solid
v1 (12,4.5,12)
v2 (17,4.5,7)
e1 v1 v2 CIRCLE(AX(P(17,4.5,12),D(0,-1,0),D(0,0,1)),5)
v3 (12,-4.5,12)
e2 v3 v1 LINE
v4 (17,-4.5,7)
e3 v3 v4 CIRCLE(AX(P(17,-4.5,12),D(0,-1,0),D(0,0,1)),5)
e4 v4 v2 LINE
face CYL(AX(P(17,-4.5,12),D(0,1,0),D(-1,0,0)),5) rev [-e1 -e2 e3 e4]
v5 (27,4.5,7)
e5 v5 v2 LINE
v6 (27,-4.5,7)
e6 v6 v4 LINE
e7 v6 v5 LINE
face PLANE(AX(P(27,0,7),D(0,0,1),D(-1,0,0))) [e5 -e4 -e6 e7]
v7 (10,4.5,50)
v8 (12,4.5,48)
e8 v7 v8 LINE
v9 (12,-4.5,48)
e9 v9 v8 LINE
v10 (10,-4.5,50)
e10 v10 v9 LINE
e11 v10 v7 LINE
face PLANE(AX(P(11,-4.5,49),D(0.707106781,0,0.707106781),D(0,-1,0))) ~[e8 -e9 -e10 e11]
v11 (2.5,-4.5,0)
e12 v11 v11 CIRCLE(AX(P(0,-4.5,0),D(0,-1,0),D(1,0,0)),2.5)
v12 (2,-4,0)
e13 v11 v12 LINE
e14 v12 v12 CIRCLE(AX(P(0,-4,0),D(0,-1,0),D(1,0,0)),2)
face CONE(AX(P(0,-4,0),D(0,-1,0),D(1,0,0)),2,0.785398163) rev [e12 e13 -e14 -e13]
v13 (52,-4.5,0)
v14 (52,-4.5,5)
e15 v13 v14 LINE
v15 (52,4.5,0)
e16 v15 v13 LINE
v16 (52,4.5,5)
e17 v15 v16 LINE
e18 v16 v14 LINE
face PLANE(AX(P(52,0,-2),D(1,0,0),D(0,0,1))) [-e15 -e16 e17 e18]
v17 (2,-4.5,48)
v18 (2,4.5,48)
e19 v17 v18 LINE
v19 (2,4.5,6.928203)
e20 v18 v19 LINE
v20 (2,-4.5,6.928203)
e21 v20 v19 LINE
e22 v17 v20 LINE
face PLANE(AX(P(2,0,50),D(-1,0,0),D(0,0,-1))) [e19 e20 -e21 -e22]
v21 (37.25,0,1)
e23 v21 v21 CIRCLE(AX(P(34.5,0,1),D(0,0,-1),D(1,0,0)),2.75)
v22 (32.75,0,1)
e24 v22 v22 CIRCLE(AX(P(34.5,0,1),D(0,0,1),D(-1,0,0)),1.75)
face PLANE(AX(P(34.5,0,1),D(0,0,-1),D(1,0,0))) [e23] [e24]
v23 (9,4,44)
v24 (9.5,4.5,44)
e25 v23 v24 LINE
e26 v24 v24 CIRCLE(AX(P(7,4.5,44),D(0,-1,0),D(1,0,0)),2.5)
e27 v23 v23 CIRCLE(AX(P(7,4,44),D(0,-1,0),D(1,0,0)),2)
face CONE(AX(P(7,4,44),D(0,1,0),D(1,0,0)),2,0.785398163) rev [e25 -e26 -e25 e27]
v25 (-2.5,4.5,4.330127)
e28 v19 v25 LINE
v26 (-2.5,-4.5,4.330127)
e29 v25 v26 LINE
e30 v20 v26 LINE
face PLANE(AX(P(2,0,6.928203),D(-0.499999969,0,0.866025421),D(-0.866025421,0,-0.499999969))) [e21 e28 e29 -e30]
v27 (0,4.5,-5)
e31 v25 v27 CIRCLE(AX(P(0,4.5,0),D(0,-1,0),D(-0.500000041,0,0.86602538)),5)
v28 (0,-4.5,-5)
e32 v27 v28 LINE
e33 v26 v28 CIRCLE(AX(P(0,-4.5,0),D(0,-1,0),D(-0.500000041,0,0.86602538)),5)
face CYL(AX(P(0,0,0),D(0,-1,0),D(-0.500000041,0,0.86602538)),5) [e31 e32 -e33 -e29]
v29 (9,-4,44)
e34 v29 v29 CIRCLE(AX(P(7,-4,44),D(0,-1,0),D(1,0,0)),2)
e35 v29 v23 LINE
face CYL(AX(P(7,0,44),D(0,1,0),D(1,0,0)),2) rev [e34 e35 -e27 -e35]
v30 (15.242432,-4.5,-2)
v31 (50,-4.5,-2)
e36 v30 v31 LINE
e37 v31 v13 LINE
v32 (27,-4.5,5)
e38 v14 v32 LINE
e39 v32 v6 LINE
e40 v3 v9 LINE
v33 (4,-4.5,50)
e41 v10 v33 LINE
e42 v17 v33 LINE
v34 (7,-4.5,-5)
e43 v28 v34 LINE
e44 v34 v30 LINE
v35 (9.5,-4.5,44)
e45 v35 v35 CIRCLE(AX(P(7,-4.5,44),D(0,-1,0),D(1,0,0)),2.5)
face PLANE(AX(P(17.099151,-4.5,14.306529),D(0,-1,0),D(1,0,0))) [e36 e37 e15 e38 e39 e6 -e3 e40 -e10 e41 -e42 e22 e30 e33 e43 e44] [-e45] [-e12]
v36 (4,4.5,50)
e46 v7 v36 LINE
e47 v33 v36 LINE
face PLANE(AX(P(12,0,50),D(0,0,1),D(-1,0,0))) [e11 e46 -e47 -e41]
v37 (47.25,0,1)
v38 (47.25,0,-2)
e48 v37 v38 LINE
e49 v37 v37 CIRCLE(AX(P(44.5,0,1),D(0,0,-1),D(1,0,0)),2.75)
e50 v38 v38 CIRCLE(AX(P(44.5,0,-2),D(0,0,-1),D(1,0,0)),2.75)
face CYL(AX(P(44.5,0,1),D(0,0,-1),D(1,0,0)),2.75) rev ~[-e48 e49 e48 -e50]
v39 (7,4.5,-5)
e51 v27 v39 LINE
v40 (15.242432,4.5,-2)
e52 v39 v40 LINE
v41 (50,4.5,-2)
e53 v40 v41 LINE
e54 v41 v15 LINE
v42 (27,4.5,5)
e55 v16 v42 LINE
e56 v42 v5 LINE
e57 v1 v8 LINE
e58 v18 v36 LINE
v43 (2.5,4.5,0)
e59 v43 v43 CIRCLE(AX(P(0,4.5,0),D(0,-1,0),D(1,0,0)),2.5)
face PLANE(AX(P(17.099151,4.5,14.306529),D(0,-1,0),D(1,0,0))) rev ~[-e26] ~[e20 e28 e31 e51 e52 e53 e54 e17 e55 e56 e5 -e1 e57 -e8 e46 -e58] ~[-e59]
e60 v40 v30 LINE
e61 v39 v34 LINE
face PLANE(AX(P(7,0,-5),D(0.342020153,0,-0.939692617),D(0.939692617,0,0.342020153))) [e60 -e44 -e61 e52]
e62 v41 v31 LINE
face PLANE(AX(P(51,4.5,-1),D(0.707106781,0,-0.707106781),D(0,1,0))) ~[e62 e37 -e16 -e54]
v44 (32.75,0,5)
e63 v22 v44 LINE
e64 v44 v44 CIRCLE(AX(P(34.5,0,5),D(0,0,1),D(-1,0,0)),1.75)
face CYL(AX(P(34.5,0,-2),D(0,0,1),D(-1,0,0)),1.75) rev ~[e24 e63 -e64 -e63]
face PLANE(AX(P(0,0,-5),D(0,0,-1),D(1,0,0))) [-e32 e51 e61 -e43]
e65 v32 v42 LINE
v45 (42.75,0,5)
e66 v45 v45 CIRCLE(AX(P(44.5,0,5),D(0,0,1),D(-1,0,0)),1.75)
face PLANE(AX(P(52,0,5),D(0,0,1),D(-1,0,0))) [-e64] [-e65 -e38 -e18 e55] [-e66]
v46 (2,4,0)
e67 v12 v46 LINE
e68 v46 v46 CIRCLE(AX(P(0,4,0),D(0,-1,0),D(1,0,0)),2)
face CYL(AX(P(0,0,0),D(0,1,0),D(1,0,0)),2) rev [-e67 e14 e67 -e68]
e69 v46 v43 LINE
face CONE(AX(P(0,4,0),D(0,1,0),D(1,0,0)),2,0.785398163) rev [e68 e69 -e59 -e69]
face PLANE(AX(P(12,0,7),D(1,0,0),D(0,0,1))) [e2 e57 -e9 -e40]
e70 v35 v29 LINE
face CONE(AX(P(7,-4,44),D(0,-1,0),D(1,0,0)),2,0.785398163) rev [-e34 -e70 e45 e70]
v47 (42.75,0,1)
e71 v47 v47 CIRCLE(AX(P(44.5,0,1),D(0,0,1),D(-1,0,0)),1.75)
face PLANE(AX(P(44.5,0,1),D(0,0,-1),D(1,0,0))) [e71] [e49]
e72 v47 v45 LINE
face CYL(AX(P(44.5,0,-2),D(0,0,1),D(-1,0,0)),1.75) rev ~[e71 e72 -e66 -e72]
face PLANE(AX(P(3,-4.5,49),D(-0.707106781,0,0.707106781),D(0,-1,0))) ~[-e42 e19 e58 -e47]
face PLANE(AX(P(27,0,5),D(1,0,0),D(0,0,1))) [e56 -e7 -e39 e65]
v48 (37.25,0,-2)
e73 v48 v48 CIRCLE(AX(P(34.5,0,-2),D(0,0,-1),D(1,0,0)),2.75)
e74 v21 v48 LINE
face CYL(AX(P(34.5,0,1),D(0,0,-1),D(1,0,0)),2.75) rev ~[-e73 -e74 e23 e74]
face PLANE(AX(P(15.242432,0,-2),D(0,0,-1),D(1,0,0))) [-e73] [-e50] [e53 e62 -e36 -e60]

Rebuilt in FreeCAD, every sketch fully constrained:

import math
import FreeCAD as App
import Part
import Sketcher
from FreeCAD import Vector
Q = App.Units.Quantity


def edges_at(feature, points):
    """Names of the edges that pass closest to the given points."""
    edges = feature.Shape.Edges
    near = lambda p: min(range(len(edges)), key=lambda i: edges[i].distToShape(Part.Vertex(*p))[0])
    return sorted({f"Edge{near(p) + 1}" for p in points})

doc = App.newDocument("Part")
body = doc.addObject("PartDesign::Body", "Body")

# Sketch on XZ plane
sketch1 = doc.addObject("Sketcher::SketchObject", "Sketch")
body.addObject(sketch1)
sketch1.AttachmentSupport = (doc.XZ_Plane, [""])
sketch1.MapMode = "FlatFace"
sketch1.addGeometry(Part.LineSegment(Vector(2, 6.928203, 0), Vector(-2.5, 4.330127, 0)), False)
sketch1.addGeometry(Part.ArcOfCircle(Part.Circle(Vector(0, 0, 0), Vector(0, 0, 1), 5), math.radians(120.000003), math.radians(269.999997)), False)
sketch1.addGeometry(Part.LineSegment(Vector(0, -5, 0), Vector(7, -5, 0)), False)
sketch1.addGeometry(Part.LineSegment(Vector(7, -5, 0), Vector(15.242432, -2, 0)), False)
sketch1.addGeometry(Part.LineSegment(Vector(15.242432, -2, 0), Vector(52, -2, 0)), False)
sketch1.addGeometry(Part.LineSegment(Vector(52, -2, 0), Vector(52, 5, 0)), False)
sketch1.addGeometry(Part.LineSegment(Vector(52, 5, 0), Vector(27, 5, 0)), False)
sketch1.addGeometry(Part.LineSegment(Vector(27, 5, 0), Vector(27, 7, 0)), False)
sketch1.addGeometry(Part.LineSegment(Vector(27, 7, 0), Vector(12, 7, 0)), False)
sketch1.addGeometry(Part.LineSegment(Vector(12, 7, 0), Vector(12, 50, 0)), False)
sketch1.addGeometry(Part.LineSegment(Vector(12, 50, 0), Vector(2, 50, 0)), False)
sketch1.addGeometry(Part.LineSegment(Vector(2, 50, 0), Vector(2, 6.928203, 0)), False)
sketch1.addGeometry(Part.Circle(Vector(0, 0, 0), Vector(0, 0, 1), 2), False)
sketch1.addGeometry(Part.Circle(Vector(7, 44, 0), Vector(0, 0, 1), 2), False)
sketch1.addConstraint(Sketcher.Constraint("Tangent", 0, 2, 1, 1))
sketch1.addConstraint(Sketcher.Constraint("Tangent", 1, 2, 2, 1))
sketch1.addConstraint(Sketcher.Constraint("Coincident", 2, 2, 3, 1))
sketch1.addConstraint(Sketcher.Constraint("Coincident", 3, 2, 4, 1))
sketch1.addConstraint(Sketcher.Constraint("Coincident", 4, 2, 5, 1))
sketch1.addConstraint(Sketcher.Constraint("Coincident", 5, 2, 6, 1))
sketch1.addConstraint(Sketcher.Constraint("Coincident", 6, 2, 7, 1))
sketch1.addConstraint(Sketcher.Constraint("Coincident", 7, 2, 8, 1))
sketch1.addConstraint(Sketcher.Constraint("Coincident", 8, 2, 9, 1))
sketch1.addConstraint(Sketcher.Constraint("Coincident", 9, 2, 10, 1))
sketch1.addConstraint(Sketcher.Constraint("Coincident", 10, 2, 11, 1))
sketch1.addConstraint(Sketcher.Constraint("Coincident", 11, 2, 0, 1))
sketch1.addConstraint(Sketcher.Constraint("Horizontal", 2))
sketch1.addConstraint(Sketcher.Constraint("Horizontal", 4))
sketch1.addConstraint(Sketcher.Constraint("Vertical", 5))
sketch1.addConstraint(Sketcher.Constraint("Horizontal", 6))
sketch1.addConstraint(Sketcher.Constraint("Vertical", 7))
sketch1.addConstraint(Sketcher.Constraint("Horizontal", 8))
sketch1.addConstraint(Sketcher.Constraint("Vertical", 9))
sketch1.addConstraint(Sketcher.Constraint("Horizontal", 10))
sketch1.addConstraint(Sketcher.Constraint("Vertical", 11))
sketch1.addConstraint(Sketcher.Constraint("Coincident", 1, 3, -1, 1))
sketch1.addConstraint(Sketcher.Constraint("Coincident", 12, 3, -1, 1))
sketch1.addConstraint(Sketcher.Constraint("Equal", 12, 13))
sketch1.addConstraint(Sketcher.Constraint("Vertical", 13, 3, 2, 2))
sketch1.addConstraint(Sketcher.Constraint("Equal", 2, 5))
sketch1.addConstraint(Sketcher.Constraint("Diameter", 12, 4.0))
sketch1.addConstraint(Sketcher.Constraint("Radius", 1, 5.0))
sketch1.addConstraint(Sketcher.Constraint("DistanceX", 2, 1, 2, 2, 7.0))
sketch1.addConstraint(Sketcher.Constraint("DistanceX", 6, 2, 6, 1, 25.0))
sketch1.addConstraint(Sketcher.Constraint("DistanceX", 8, 2, 8, 1, 15.0))
sketch1.addConstraint(Sketcher.Constraint("DistanceX", 10, 2, 10, 1, 10.0))
sketch1.addConstraint(Sketcher.Constraint("DistanceY", 7, 1, 7, 2, 2.0))
sketch1.addConstraint(Sketcher.Constraint("DistanceY", 9, 1, 9, 2, 43.0))
sketch1.addConstraint(Sketcher.Constraint("Angle", 0, Q("-150.000002 deg")))
sketch1.addConstraint(Sketcher.Constraint("Angle", 3, Q("20.000001 deg")))
sketch1.addConstraint(Sketcher.Constraint("DistanceY", -1, 1, 13, 3, 44.0))
sketch1.addConstraint(Sketcher.Constraint("DistanceY", 3, 2, -1, 1, 2.0))
sketch1.addConstraint(Sketcher.Constraint("DistanceX", -1, 1, 4, 2, 52.0))
pad1 = doc.addObject("PartDesign::Pad", "Pad")
body.addObject(pad1)
pad1.Profile = sketch1
pad1.Length = 9
pad1.Midplane = True
doc.recompute()

chamfer = doc.addObject("PartDesign::Chamfer", "Chamfer")
body.addObject(chamfer)
chamfer.Base = (pad1, edges_at(pad1, [
    (5, -4.5, 44),
    (-2, -4.5, 0),
    (5, 4.5, 44),
    (-2, 4.5, 0),
]))
chamfer.Size = 0.5
doc.recompute()

chamfer2 = doc.addObject("PartDesign::Chamfer", "Chamfer001")
body.addObject(chamfer2)
chamfer2.Base = (chamfer, edges_at(chamfer, [(12, 0, 50), (2, 0, 50), (52, 0, -2)]))
chamfer2.Size = 2
doc.recompute()

fillet = doc.addObject("PartDesign::Fillet", "Fillet")
body.addObject(fillet)
fillet.Base = (chamfer2, edges_at(chamfer2, [(12, 0, 7)]))
fillet.Radius = 5

# Sketch on XY plane
sketch2 = doc.addObject("Sketcher::SketchObject", "Sketch001")
body.addObject(sketch2)
sketch2.AttachmentSupport = (doc.XY_Plane, [""])
sketch2.MapMode = "FlatFace"
sketch2.AttachmentOffset = App.Placement(Vector(0, 0, -2), App.Rotation())
sketch2.addGeometry(Part.Circle(Vector(44.5, 0, 0), Vector(0, 0, 1), 1.75), False)
sketch2.addGeometry(Part.Circle(Vector(34.5, 0, 0), Vector(0, 0, 1), 1.75), False)
sketch2.addConstraint(Sketcher.Constraint("Equal", 0, 1))
sketch2.addConstraint(Sketcher.Constraint("PointOnObject", 0, 3, -1))
sketch2.addConstraint(Sketcher.Constraint("PointOnObject", 1, 3, -1))
sketch2.addConstraint(Sketcher.Constraint("Diameter", 0, 3.5))
sketch2.addConstraint(Sketcher.Constraint("DistanceX", 1, 3, 0, 3, 10.0))
sketch2.addConstraint(Sketcher.Constraint("DistanceX", -1, 1, 0, 3, 44.5))
doc.recompute()
hole = doc.addObject("PartDesign::Hole", "Hole")
body.addObject(hole)
hole.Profile = sketch2
hole.ThreadType = "None"
hole.Diameter = 3.5
hole.DepthType = "ThroughAll"
hole.HoleCutType = "Counterbore"
hole.HoleCutDiameter = 5.5
hole.HoleCutDepth = 3
hole.Reversed = True

doc.recompute()
